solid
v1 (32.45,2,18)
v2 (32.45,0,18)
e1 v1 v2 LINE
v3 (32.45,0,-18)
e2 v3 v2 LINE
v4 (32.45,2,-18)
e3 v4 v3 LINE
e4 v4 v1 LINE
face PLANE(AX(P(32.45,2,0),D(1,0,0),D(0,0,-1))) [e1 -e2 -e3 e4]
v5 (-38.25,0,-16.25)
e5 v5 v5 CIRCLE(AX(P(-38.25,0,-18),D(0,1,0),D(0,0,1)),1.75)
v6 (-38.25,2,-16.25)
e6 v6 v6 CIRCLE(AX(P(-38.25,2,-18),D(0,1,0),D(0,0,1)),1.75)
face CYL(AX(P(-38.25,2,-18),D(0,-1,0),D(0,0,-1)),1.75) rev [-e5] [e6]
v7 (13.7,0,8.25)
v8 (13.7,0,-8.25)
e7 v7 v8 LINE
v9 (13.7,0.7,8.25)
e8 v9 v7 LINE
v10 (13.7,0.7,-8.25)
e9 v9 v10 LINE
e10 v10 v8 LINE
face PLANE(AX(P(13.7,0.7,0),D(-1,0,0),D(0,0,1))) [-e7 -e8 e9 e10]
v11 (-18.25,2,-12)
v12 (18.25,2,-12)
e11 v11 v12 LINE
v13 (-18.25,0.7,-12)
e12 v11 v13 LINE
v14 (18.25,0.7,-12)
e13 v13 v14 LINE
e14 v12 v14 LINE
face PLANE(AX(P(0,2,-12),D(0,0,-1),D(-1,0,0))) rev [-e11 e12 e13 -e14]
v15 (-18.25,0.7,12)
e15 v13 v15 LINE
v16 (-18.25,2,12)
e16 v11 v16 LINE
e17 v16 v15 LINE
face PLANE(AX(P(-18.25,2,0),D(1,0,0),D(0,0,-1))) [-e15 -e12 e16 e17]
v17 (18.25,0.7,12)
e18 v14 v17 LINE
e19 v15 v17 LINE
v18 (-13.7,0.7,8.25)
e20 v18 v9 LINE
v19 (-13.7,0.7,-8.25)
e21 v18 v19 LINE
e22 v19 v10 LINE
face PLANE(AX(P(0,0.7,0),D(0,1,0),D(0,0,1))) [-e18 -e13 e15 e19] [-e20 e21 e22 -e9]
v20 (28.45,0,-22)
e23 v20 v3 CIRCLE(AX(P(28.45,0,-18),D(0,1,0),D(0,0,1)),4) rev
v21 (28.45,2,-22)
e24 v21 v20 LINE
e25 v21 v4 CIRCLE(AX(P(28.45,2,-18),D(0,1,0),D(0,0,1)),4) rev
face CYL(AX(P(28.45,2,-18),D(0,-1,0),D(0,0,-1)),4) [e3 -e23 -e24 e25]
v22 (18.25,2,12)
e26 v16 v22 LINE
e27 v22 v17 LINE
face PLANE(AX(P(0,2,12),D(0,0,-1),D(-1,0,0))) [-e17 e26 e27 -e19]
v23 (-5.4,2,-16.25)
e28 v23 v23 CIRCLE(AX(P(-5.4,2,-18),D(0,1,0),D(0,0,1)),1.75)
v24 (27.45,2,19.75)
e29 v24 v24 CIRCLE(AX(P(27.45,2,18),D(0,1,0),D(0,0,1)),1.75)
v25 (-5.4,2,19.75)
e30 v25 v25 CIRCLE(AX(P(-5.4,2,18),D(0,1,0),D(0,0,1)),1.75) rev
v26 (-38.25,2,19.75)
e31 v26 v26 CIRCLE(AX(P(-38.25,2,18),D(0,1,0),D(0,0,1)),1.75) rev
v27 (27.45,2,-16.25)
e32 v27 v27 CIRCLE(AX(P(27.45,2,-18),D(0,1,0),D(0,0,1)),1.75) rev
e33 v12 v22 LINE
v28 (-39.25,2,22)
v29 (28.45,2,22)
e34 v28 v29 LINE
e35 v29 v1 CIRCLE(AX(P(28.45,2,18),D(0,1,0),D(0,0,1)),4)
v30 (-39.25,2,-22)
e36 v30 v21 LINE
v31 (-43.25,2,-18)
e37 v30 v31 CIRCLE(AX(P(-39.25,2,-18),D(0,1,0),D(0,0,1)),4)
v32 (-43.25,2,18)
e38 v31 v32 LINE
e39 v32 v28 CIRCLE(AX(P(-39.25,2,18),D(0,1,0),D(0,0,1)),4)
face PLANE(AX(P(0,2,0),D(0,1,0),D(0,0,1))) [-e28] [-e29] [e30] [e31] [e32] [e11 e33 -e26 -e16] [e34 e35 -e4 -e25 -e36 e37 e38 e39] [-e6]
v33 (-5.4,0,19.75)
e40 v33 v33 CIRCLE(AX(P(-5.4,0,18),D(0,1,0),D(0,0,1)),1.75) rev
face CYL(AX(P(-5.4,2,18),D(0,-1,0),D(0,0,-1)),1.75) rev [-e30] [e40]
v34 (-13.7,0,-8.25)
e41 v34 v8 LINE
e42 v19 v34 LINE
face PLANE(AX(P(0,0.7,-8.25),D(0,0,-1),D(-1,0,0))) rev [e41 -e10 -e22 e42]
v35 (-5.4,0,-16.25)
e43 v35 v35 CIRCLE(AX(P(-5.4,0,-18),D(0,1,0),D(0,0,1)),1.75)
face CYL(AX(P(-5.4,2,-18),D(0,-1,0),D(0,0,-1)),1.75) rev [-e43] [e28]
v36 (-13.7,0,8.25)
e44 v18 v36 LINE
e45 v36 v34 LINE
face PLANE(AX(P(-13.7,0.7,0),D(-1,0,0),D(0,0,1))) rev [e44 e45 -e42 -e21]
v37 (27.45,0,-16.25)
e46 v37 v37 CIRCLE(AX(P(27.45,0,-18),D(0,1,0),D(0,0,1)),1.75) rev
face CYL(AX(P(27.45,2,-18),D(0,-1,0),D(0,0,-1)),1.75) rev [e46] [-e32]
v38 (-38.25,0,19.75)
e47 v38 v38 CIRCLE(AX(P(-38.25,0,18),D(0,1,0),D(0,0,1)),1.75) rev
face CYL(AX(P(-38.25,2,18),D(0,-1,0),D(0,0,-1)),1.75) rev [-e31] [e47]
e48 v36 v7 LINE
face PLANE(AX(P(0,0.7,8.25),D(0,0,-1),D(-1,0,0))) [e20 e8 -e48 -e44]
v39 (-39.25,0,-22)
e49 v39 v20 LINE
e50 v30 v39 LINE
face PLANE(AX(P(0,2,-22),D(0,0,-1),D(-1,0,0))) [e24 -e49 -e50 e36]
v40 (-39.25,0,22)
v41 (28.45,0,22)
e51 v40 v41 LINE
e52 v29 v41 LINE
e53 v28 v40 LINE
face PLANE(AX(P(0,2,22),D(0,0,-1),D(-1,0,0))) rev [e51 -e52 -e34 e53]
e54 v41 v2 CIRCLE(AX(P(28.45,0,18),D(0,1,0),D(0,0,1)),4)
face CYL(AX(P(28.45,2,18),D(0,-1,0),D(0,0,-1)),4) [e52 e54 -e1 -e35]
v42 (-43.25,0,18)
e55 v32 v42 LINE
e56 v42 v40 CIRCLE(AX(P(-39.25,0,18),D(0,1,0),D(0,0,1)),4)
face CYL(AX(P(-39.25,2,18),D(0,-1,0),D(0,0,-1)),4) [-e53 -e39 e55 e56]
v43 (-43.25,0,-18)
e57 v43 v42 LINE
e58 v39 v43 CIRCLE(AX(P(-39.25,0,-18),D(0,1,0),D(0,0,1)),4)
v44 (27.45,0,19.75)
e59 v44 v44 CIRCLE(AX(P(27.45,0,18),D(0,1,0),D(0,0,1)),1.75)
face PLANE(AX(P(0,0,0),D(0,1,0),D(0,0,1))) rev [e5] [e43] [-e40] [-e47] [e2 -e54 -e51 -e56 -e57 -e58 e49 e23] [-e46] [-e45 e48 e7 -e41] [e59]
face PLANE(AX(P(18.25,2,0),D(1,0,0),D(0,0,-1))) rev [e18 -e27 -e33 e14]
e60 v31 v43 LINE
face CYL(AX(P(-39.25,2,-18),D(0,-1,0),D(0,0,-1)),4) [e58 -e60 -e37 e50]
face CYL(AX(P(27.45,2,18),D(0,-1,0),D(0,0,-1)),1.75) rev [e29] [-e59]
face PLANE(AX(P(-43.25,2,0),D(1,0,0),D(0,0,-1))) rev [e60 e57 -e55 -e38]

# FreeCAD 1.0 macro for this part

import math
import FreeCAD as App
import Part
import Sketcher

V = App.Vector


def add_polygon(sketch, points):
    """Adds a closed chain of lines whose ends are joined by coincident constraints."""
    first, n = sketch.GeometryCount, len(points)
    for a, b in zip(points, points[1:] + points[:1]):
        sketch.addGeometry(Part.LineSegment(App.Vector(*a, 0), App.Vector(*b, 0)), False)
    for i in range(n):
        sketch.addConstraint(Sketcher.Constraint("Coincident", first + i, 2, first + (i + 1) % n, 1))

doc = App.newDocument("Part")
params = doc.addObject("Spreadsheet::Sheet", "Params")
for row, (alias, value) in enumerate([
    ("sketch1_radius", "4 mm"),
    ("sketch1_diameter", "3.5 mm"),
    ("sketch1_height", "36 mm"),
    ("sketch1_height2", "24 mm"),
    ("sketch1_width", "67.7 mm"),
    ("pad1_length", "2 mm"),
    ("sketch2_height", "24 mm"),
    ("sketch2_width", "36.5 mm"),
    ("sketch2_width2", "27.4 mm"),
    ("sketch2_height2", "16.5 mm"),
    ("pad2_length", "0.7 mm"),
], start=1):
    params.set(f"A{row}", alias)
    params.set(f"B{row}", "=" + value)
    params.setAlias(f"B{row}", alias)

body = doc.addObject("PartDesign::Body", "Body")

# Sketch on XZ plane
sketch1 = body.newObject("Sketcher::SketchObject", "Sketch")
sketch1.AttachmentSupport = (doc.getObject("XZ_Plane"), [""])
sketch1.MapMode = "FlatFace"
sketch1.addGeometry(Part.LineSegment(V(28.45, -22, 0), V(-39.25, -22, 0)), False)  # 0
sketch1.addGeometry(Part.ArcOfCircle(Part.Circle(V(-39.25, -18, 0), V(0, 0, 1), 4), math.radians(180), math.radians(270)), False)  # 1
sketch1.addGeometry(Part.LineSegment(V(-43.25, -18, 0), V(-43.25, 18, 0)), False)  # 2
sketch1.addGeometry(Part.ArcOfCircle(Part.Circle(V(-39.25, 18, 0), V(0, 0, 1), 4), math.radians(90), math.radians(180)), False)  # 3
sketch1.addGeometry(Part.LineSegment(V(-39.25, 22, 0), V(28.45, 22, 0)), False)  # 4
sketch1.addGeometry(Part.ArcOfCircle(Part.Circle(V(28.45, 18, 0), V(0, 0, 1), 4), math.radians(0), math.radians(90)), False)  # 5
sketch1.addGeometry(Part.LineSegment(V(32.45, 18, 0), V(32.45, -18, 0)), False)  # 6
sketch1.addGeometry(Part.ArcOfCircle(Part.Circle(V(28.45, -18, 0), V(0, 0, 1), 4), math.radians(-90), math.radians(0)), False)  # 7
sketch1.addGeometry(Part.Circle(V(27.45, 18, 0), V(0, 0, 1), 1.75), False)  # 8
sketch1.addGeometry(Part.Circle(V(-5.4, 18, 0), V(0, 0, 1), 1.75), False)  # 9
sketch1.addGeometry(Part.Circle(V(-38.25, 18, 0), V(0, 0, 1), 1.75), False)  # 10
sketch1.addGeometry(Part.Circle(V(27.45, -18, 0), V(0, 0, 1), 1.75), False)  # 11
sketch1.addGeometry(Part.Circle(V(-5.4, -18, 0), V(0, 0, 1), 1.75), False)  # 12
sketch1.addGeometry(Part.Circle(V(-38.25, -18, 0), V(0, 0, 1), 1.75), False)  # 13
add_polygon(sketch1, [(-18.25, 12), (-18.25, -12), (18.25, -12), (18.25, 12)])  # lines 14-17
sketch1.addConstraint(Sketcher.Constraint("Tangent", 0, 2, 1, 2))
sketch1.addConstraint(Sketcher.Constraint("Tangent", 1, 1, 2, 1))
sketch1.addConstraint(Sketcher.Constraint("Tangent", 2, 2, 3, 2))
sketch1.addConstraint(Sketcher.Constraint("Tangent", 3, 1, 4, 1))
sketch1.addConstraint(Sketcher.Constraint("Tangent", 4, 2, 5, 2))
sketch1.addConstraint(Sketcher.Constraint("Tangent", 5, 1, 6, 1))
sketch1.addConstraint(Sketcher.Constraint("Tangent", 6, 2, 7, 2))
sketch1.addConstraint(Sketcher.Constraint("Tangent", 7, 1, 0, 1))
sketch1.addConstraint(Sketcher.Constraint("Horizontal", 0))
sketch1.addConstraint(Sketcher.Constraint("Vertical", 2))
sketch1.addConstraint(Sketcher.Constraint("Horizontal", 4))
sketch1.addConstraint(Sketcher.Constraint("Vertical", 6))
sketch1.addConstraint(Sketcher.Constraint("Vertical", 14))
sketch1.addConstraint(Sketcher.Constraint("Horizontal", 15))
sketch1.addConstraint(Sketcher.Constraint("Vertical", 16))
sketch1.addConstraint(Sketcher.Constraint("Horizontal", 17))
sketch1.addConstraint(Sketcher.Constraint("Equal", 1, 3))
sketch1.addConstraint(Sketcher.Constraint("Equal", 3, 5))
sketch1.addConstraint(Sketcher.Constraint("Equal", 5, 7))
sketch1.addConstraint(Sketcher.Constraint("Equal", 8, 9))
sketch1.addConstraint(Sketcher.Constraint("Equal", 9, 10))
sketch1.addConstraint(Sketcher.Constraint("Equal", 10, 11))
sketch1.addConstraint(Sketcher.Constraint("Equal", 11, 12))
sketch1.addConstraint(Sketcher.Constraint("Equal", 12, 13))
sketch1.addConstraint(Sketcher.Constraint("Symmetric", 14, 2, 16, 2, -1, 1))
sketch1.addConstraint(Sketcher.Constraint("Symmetric", 8, 3, 11, 3, -1))
sketch1.addConstraint(Sketcher.Constraint("Symmetric", 9, 3, 12, 3, -1))
sketch1.addConstraint(Sketcher.Constraint("Symmetric", 10, 3, 13, 3, -1))
sketch1.addConstraint(Sketcher.Constraint("Horizontal", 5, 3, 8, 3))
sketch1.addConstraint(Sketcher.Constraint("Horizontal", 8, 3, 9, 3))
sketch1.addConstraint(Sketcher.Constraint("Horizontal", 9, 3, 10, 3))
sketch1.addConstraint(Sketcher.Constraint("Horizontal", 7, 3, 11, 3))
sketch1.addConstraint(Sketcher.Constraint("Radius", 1, 4.0))
sketch1.addConstraint(Sketcher.Constraint("Diameter", 8, 3.5))
sketch1.addConstraint(Sketcher.Constraint("DistanceY", 2, 1, 2, 2, 36.0))
sketch1.addConstraint(Sketcher.Constraint("DistanceY", 14, 2, 14, 1, 24.0))
sketch1.addConstraint(Sketcher.Constraint("DistanceX", 0, 2, 0, 1, 67.7))
sketch1.addConstraint(Sketcher.Constraint("DistanceX", 15, 1, 15, 2, 36.5))
sketch1.addConstraint(Sketcher.Constraint("DistanceX", 8, 3, 5, 3, 1.0))
sketch1.addConstraint(Sketcher.Constraint("DistanceX", 3, 3, 10, 3, 1.0))
sketch1.addConstraint(Sketcher.Constraint("DistanceX", 13, 3, 14, 2, 20.0))
sketch1.addConstraint(Sketcher.Constraint("DistanceX", 9, 3, -1, 1, 5.4))
sketch1.setExpression("Constraints[36]", "Params.sketch1_radius")
sketch1.setExpression("Constraints[37]", "Params.sketch1_diameter")
sketch1.setExpression("Constraints[38]", "Params.sketch1_height")
sketch1.setExpression("Constraints[39]", "Params.sketch1_height2")
sketch1.setExpression("Constraints[40]", "Params.sketch1_width")
pad1 = body.newObject("PartDesign::Pad", "Pad")
pad1.Profile = sketch1
pad1.setExpression("Length", "Params.pad1_length")
pad1.Reversed = True

# Sketch on XZ plane
sketch2 = body.newObject("Sketcher::SketchObject", "Sketch001")
sketch2.AttachmentSupport = (doc.getObject("XZ_Plane"), [""])
sketch2.MapMode = "FlatFace"
add_polygon(sketch2, [(-18.25, -12), (-18.25, 12), (18.25, 12), (18.25, -12)])  # lines 0-3
add_polygon(sketch2, [(13.7, 8.25), (-13.7, 8.25), (-13.7, -8.25), (13.7, -8.25)])  # lines 4-7
sketch2.addConstraint(Sketcher.Constraint("Vertical", 0))
sketch2.addConstraint(Sketcher.Constraint("Horizontal", 1))
sketch2.addConstraint(Sketcher.Constraint("Vertical", 2))
sketch2.addConstraint(Sketcher.Constraint("Horizontal", 3))
sketch2.addConstraint(Sketcher.Constraint("Horizontal", 4))
sketch2.addConstraint(Sketcher.Constraint("Vertical", 5))
sketch2.addConstraint(Sketcher.Constraint("Horizontal", 6))
sketch2.addConstraint(Sketcher.Constraint("Vertical", 7))
sketch2.addConstraint(Sketcher.Constraint("Symmetric", 0, 2, 2, 2, -1, 1))
sketch2.addConstraint(Sketcher.Constraint("Symmetric", 4, 2, 6, 2, -1, 1))
sketch2.addConstraint(Sketcher.Constraint("DistanceY", 0, 1, 0, 2, 24.0))
sketch2.addConstraint(Sketcher.Constraint("DistanceX", 1, 1, 1, 2, 36.5))
sketch2.addConstraint(Sketcher.Constraint("DistanceX", 4, 2, 4, 1, 27.4))
sketch2.addConstraint(Sketcher.Constraint("DistanceY", 5, 2, 5, 1, 16.5))
sketch2.setExpression("Constraints[18]", "Params.sketch2_height")
sketch2.setExpression("Constraints[19]", "Params.sketch2_width")
sketch2.setExpression("Constraints[20]", "Params.sketch2_width2")
sketch2.setExpression("Constraints[21]", "Params.sketch2_height2")
pad2 = body.newObject("PartDesign::Pad", "Pad001")
pad2.Profile = sketch2
pad2.setExpression("Length", "Params.pad2_length")
pad2.Reversed = True

doc.recompute()
